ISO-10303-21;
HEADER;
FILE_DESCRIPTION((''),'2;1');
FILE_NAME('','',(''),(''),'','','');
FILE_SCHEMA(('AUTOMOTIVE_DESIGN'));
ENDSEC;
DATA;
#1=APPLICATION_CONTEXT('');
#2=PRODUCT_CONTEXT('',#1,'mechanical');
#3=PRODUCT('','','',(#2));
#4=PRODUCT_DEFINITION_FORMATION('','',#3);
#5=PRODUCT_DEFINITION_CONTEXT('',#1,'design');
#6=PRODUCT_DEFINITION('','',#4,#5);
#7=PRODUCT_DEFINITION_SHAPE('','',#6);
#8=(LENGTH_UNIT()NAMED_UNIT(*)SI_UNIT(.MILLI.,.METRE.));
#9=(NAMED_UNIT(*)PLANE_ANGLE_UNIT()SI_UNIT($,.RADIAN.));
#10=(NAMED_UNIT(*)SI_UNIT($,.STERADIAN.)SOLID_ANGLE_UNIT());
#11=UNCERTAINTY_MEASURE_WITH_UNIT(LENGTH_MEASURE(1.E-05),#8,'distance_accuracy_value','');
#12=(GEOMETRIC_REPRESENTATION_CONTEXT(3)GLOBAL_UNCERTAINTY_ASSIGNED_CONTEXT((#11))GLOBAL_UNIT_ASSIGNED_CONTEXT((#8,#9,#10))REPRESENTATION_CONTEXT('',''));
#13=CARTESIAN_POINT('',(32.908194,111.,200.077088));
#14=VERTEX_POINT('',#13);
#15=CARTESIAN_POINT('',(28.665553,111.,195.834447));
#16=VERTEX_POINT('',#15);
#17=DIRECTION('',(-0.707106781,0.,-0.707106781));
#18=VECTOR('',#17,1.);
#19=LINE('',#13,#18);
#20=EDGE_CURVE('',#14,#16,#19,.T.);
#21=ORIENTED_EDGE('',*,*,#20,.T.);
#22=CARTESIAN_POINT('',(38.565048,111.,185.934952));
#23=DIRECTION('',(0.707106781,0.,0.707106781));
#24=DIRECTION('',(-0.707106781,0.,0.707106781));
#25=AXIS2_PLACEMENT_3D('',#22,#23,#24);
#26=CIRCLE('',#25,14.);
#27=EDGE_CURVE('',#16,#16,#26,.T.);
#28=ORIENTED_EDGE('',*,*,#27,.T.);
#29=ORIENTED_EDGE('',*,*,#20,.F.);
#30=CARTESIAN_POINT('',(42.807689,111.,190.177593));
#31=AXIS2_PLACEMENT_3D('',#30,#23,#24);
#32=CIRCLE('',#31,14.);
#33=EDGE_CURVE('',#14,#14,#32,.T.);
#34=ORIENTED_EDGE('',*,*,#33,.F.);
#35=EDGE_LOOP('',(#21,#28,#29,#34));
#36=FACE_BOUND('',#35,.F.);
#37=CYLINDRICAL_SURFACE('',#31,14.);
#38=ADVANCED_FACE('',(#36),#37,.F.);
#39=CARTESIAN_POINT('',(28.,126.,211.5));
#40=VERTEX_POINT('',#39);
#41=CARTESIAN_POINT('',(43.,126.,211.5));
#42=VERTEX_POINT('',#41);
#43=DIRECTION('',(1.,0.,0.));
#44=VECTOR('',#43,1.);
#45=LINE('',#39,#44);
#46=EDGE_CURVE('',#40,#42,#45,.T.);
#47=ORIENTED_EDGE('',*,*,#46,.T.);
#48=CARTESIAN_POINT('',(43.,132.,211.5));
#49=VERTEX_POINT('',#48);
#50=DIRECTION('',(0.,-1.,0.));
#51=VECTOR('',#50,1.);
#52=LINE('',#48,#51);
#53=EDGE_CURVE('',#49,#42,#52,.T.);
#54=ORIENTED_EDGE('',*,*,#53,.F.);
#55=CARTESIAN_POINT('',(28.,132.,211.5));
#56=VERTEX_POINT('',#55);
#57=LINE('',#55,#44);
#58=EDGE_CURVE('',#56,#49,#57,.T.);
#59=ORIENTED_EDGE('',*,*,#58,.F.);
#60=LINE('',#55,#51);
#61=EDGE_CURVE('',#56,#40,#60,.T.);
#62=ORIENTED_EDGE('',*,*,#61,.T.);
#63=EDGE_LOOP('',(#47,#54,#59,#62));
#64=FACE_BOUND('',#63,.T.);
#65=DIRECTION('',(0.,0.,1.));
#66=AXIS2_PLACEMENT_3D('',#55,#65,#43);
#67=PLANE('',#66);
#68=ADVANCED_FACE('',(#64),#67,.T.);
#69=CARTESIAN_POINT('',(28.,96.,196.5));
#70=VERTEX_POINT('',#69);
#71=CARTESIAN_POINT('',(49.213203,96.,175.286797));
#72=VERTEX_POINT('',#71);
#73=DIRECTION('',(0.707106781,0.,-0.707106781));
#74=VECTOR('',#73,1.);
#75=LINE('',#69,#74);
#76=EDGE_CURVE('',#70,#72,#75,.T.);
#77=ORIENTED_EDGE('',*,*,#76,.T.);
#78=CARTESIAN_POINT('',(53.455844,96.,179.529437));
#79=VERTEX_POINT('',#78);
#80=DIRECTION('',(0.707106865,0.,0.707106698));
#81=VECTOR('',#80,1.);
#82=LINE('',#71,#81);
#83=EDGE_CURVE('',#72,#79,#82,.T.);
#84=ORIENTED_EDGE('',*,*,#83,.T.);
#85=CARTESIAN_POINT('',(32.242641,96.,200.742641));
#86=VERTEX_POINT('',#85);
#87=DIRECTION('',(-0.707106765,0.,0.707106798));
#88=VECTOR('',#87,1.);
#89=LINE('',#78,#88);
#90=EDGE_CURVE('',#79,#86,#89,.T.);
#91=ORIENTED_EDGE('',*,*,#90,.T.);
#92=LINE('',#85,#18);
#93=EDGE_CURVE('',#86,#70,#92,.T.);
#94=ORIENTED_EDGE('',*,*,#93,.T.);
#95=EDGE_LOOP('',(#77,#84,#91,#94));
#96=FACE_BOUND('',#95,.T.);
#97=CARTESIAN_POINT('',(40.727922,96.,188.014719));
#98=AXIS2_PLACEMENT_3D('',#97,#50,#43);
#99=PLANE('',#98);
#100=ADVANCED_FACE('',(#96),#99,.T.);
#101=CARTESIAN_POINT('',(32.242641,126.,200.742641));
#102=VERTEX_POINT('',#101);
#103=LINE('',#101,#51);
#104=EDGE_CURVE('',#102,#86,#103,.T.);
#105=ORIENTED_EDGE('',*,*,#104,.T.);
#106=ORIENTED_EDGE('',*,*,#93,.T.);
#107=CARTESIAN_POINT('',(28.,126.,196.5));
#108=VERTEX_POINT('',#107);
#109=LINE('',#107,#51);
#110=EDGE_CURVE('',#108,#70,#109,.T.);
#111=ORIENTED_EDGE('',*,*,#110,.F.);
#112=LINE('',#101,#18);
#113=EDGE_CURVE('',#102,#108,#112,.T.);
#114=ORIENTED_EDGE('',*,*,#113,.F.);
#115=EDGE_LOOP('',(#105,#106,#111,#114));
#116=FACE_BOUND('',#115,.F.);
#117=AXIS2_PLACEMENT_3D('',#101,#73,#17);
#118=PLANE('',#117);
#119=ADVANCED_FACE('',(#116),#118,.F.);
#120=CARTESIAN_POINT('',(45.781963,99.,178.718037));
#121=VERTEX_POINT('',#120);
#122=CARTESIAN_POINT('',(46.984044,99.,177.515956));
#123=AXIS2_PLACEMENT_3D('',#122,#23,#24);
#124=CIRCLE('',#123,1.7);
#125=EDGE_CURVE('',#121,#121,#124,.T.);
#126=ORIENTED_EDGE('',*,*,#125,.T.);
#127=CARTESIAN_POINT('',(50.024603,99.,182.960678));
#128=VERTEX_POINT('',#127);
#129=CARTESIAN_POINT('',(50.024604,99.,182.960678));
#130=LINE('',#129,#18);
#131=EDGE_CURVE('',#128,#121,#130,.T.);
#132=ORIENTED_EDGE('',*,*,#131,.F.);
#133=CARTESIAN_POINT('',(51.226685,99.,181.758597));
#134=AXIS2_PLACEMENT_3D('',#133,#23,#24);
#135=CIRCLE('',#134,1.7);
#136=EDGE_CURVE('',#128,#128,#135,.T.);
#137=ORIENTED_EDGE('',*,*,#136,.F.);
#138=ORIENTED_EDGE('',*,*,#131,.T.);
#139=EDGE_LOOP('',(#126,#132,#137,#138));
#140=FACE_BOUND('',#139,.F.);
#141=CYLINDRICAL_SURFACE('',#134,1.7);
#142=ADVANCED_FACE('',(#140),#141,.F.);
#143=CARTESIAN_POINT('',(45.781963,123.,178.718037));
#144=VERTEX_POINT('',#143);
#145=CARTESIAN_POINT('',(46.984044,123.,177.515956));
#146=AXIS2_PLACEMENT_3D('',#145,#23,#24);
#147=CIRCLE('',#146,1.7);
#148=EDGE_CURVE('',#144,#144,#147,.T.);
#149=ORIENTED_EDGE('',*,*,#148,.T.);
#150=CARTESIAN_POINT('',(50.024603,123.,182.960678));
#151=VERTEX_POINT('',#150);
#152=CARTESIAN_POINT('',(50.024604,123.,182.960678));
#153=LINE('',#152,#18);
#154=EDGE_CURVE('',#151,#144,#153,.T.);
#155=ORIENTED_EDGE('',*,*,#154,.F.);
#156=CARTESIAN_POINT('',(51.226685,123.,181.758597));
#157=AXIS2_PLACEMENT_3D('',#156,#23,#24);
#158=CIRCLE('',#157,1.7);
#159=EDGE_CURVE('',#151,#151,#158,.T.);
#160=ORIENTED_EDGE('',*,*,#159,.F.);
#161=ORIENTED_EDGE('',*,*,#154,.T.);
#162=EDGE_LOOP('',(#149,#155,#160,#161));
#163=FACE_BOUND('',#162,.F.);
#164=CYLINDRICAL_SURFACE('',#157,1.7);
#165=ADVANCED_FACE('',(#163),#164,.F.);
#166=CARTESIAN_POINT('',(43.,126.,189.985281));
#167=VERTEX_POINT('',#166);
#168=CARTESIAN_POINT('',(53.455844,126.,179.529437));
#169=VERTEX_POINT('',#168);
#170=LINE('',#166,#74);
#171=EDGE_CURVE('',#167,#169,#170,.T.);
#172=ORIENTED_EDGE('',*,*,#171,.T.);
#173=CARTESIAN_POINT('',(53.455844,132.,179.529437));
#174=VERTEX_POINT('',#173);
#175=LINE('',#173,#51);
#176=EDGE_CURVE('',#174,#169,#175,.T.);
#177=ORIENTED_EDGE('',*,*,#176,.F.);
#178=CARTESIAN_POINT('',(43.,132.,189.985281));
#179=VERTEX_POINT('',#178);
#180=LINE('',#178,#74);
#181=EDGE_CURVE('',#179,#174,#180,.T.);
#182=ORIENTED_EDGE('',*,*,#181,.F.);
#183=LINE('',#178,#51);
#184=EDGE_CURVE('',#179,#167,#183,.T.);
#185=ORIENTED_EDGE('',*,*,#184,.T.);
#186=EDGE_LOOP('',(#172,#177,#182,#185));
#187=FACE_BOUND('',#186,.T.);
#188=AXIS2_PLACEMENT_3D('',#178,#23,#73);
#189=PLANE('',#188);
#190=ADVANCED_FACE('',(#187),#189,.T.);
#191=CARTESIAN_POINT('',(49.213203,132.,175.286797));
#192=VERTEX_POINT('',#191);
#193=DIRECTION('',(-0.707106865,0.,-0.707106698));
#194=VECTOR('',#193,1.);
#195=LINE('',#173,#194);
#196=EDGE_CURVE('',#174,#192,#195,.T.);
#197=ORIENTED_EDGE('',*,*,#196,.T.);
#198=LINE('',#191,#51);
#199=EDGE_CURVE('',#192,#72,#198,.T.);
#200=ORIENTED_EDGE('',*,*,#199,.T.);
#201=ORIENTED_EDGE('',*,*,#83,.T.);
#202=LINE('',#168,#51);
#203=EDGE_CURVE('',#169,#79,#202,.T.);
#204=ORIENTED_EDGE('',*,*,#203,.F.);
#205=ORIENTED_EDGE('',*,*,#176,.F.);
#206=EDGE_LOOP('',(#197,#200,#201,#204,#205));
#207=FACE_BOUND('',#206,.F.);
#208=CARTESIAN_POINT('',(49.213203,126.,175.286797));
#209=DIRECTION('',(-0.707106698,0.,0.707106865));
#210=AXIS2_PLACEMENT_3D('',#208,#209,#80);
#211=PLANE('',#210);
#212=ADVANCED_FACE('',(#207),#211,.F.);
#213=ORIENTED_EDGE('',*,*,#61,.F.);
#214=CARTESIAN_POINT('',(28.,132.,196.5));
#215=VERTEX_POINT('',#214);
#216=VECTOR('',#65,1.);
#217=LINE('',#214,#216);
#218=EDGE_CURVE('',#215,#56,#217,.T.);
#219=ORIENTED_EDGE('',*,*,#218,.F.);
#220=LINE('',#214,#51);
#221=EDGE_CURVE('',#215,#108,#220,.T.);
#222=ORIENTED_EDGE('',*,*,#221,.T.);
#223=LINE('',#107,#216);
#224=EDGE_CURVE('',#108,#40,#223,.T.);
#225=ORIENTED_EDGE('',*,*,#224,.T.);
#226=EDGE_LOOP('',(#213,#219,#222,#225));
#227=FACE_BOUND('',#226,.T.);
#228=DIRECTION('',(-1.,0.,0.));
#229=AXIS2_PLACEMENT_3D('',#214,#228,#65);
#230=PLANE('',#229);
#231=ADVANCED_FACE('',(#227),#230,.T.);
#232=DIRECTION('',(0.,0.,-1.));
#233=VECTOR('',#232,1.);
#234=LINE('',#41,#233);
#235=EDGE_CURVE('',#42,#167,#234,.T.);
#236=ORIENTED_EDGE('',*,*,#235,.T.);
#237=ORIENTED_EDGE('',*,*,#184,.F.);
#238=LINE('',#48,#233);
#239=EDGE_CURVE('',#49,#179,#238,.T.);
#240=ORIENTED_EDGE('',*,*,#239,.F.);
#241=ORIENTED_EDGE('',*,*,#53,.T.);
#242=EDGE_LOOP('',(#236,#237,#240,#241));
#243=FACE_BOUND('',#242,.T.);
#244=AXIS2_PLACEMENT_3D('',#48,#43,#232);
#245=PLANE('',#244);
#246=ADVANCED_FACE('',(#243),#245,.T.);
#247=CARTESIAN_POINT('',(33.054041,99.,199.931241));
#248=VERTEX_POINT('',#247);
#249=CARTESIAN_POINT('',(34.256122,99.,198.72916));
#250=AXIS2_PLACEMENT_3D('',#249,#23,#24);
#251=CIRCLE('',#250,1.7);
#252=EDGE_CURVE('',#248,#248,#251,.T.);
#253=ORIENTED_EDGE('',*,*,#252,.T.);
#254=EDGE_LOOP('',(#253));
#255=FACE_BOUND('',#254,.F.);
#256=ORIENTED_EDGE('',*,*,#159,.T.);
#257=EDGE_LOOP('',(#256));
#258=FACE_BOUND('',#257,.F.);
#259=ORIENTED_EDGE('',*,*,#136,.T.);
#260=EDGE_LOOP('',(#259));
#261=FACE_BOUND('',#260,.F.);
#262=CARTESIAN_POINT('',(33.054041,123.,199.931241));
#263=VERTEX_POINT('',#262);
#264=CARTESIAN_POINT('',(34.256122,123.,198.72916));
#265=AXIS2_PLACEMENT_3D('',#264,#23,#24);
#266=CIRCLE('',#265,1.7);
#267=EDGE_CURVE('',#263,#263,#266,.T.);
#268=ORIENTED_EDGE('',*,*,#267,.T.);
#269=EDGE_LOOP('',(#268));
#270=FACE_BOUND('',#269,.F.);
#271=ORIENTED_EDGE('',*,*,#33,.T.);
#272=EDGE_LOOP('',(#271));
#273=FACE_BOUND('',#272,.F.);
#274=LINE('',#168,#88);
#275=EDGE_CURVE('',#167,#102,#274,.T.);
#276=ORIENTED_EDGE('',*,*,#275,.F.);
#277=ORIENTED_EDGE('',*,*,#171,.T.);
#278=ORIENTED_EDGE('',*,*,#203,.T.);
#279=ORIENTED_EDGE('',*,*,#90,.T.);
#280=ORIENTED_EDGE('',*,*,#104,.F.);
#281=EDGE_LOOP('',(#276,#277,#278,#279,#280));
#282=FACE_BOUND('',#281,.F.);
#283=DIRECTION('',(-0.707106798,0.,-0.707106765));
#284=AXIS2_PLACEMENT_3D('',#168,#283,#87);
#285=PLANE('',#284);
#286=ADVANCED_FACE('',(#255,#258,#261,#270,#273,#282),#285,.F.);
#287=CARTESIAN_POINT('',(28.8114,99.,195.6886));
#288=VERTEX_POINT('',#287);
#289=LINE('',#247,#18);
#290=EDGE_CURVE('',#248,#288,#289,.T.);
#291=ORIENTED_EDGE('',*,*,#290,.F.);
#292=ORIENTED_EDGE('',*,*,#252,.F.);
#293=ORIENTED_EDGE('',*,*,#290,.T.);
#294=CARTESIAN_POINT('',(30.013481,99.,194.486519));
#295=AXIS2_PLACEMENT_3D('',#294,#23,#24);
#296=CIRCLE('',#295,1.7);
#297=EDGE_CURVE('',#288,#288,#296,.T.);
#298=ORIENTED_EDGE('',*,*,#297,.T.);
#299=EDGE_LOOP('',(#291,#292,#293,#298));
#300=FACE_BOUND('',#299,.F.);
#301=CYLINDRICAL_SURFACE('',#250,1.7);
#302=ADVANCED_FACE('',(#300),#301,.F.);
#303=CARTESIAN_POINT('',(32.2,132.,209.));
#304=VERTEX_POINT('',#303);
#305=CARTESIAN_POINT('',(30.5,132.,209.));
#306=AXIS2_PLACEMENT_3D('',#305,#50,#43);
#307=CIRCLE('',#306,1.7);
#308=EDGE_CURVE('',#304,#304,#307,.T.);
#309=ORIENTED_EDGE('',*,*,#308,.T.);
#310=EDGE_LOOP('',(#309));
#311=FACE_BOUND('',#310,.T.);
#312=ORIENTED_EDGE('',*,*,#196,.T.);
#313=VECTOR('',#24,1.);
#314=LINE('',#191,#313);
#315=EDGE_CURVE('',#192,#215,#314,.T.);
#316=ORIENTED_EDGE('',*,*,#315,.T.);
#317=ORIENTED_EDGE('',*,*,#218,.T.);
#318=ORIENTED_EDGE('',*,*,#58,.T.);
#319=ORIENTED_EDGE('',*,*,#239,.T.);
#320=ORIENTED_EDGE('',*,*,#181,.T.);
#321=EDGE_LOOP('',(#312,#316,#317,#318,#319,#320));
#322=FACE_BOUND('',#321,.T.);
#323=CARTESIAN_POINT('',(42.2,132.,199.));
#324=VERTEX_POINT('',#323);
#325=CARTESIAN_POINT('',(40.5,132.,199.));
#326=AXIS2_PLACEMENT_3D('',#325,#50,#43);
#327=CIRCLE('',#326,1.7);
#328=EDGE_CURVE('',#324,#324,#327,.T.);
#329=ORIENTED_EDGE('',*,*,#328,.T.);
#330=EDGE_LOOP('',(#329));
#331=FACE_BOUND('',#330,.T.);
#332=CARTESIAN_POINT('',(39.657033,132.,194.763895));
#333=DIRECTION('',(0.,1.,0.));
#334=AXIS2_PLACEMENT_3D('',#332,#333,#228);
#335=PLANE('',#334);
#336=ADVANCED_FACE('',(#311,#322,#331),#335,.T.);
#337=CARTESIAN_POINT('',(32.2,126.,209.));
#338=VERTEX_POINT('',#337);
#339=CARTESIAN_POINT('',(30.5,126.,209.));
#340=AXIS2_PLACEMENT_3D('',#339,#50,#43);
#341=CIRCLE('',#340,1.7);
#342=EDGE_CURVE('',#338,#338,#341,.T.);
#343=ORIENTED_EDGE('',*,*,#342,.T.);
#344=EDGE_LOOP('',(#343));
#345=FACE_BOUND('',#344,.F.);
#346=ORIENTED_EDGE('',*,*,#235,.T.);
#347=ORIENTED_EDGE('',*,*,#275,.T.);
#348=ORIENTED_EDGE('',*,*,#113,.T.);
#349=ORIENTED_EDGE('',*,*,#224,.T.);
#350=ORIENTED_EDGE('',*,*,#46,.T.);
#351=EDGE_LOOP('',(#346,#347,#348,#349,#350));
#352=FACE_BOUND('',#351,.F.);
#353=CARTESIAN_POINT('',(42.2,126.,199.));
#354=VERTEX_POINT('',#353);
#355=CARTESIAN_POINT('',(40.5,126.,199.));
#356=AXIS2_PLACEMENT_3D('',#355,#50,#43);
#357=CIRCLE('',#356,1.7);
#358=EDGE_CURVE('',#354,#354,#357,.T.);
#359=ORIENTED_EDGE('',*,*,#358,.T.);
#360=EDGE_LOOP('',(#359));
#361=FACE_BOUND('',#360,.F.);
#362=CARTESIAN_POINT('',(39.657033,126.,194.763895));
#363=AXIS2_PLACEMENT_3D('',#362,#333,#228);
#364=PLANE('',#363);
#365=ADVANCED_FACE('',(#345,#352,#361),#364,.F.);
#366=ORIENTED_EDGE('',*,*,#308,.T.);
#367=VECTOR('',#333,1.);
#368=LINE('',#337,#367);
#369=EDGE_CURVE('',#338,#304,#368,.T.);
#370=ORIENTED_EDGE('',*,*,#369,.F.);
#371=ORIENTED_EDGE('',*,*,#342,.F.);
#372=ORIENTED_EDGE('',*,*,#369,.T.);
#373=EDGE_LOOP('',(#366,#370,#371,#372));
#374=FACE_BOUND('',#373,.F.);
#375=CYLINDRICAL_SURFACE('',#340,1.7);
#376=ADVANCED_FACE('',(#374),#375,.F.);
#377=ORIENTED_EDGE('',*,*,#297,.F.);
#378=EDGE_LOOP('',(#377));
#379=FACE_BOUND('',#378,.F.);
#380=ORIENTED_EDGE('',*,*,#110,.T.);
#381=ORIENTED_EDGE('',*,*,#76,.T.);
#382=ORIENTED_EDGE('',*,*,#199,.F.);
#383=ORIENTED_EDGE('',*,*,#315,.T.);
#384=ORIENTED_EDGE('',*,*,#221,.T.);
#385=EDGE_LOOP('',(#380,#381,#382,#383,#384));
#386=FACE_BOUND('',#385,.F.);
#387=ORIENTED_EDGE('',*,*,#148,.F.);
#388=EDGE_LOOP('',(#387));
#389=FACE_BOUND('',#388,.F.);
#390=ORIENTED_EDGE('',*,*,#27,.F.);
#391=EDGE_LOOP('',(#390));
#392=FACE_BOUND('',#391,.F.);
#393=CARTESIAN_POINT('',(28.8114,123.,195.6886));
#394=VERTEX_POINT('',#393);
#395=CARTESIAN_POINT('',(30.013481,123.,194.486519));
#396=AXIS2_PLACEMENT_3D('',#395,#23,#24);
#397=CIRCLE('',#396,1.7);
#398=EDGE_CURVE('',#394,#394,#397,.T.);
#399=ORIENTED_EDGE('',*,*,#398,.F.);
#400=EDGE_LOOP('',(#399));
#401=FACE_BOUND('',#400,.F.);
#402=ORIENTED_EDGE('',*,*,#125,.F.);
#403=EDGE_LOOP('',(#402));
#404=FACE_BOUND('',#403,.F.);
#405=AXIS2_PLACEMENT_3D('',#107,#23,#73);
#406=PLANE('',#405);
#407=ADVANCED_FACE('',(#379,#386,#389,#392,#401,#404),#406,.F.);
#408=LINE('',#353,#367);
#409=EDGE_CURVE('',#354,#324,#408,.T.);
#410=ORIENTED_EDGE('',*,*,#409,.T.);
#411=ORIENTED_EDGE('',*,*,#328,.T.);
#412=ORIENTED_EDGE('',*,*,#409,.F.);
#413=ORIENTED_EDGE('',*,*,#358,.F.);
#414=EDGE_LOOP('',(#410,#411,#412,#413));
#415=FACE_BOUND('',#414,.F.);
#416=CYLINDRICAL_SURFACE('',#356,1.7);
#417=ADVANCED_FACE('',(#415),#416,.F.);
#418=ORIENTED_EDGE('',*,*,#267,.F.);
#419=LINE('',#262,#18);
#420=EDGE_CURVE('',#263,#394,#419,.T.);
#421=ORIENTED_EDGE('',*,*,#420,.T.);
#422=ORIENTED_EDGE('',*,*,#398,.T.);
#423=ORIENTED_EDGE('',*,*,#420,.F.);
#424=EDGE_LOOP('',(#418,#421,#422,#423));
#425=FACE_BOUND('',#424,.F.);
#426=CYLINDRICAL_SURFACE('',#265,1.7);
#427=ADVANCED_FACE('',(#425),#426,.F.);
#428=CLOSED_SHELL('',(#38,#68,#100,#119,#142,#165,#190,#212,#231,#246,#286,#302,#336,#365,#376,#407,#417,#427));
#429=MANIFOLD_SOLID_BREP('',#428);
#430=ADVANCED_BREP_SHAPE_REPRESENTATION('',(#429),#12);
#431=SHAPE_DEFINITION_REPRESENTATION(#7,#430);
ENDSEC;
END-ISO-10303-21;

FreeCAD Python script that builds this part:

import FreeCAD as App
import Part
import Sketcher
from FreeCAD import Vector
Q = App.Units.Quantity


def add_polygon(sketch, points):
    """Adds a closed chain of lines whose ends are joined by coincident constraints."""
    first, n = sketch.GeometryCount, len(points)
    for a, b in zip(points, points[1:] + points[:1]):
        sketch.addGeometry(Part.LineSegment(App.Vector(*a, 0), App.Vector(*b, 0)), False)
    for i in range(n):
        sketch.addConstraint(Sketcher.Constraint("Coincident", first + i, 2, first + (i + 1) % n, 1))

doc = App.newDocument("Part")
body = doc.addObject("PartDesign::Body", "Body")

sketch1 = body.newObject("Sketcher::SketchObject", "Sketch")
sketch1.AttachmentSupport = (doc.getObject("XZ_Plane"), [""])
sketch1.MapMode = "FlatFace"
add_polygon(sketch1, [(43, 211.5), (28, 211.5), (28, 196.5), (49.213203, 175.286797), (53.455844, 179.529437), (43, 189.985281)])
sketch1.addConstraint(Sketcher.Constraint("Horizontal", 0))
sketch1.addConstraint(Sketcher.Constraint("Vertical", 1))
sketch1.addConstraint(Sketcher.Constraint("Vertical", 5))
sketch1.addConstraint(Sketcher.Constraint("Perpendicular", 2, 3))
sketch1.addConstraint(Sketcher.Constraint("Perpendicular", 3, 4))
sketch1.addConstraint(Sketcher.Constraint("Equal", 0, 1))
sketch1.addConstraint(Sketcher.Constraint("DistanceX", 0, 2, 0, 1, 15.0))
sketch1.addConstraint(Sketcher.Constraint("Angle", 2, Q("-45 deg")))
sketch1.addConstraint(Sketcher.Constraint("Distance", 2, 29.999999))
sketch1.addConstraint(Sketcher.Constraint("Distance", 3, 6.0))
sketch1.addConstraint(Sketcher.Constraint("DistanceX", -1, 1, 0, 2, 28.0))
sketch1.addConstraint(Sketcher.Constraint("DistanceY", -1, 1, 0, 2, 211.5))
pad1 = body.newObject("PartDesign::Pad", "Pad")
pad1.Profile = sketch1
pad1.Length = 6

sketch2 = body.newObject("Sketcher::SketchObject", "Sketch001")
sketch2.AttachmentSupport = (doc.getObject("XZ_Plane"), [""])
sketch2.MapMode = "FlatFace"
sketch2.AttachmentOffset = App.Placement(Vector(0, 0, 6), App.Rotation())
add_polygon(sketch2, [(28, 196.5), (49.213203, 175.286797), (53.455844, 179.529437), (32.242641, 200.742641)])
sketch2.addConstraint(Sketcher.Constraint("Perpendicular", 0, 1))
sketch2.addConstraint(Sketcher.Constraint("Perpendicular", 1, 2))
sketch2.addConstraint(Sketcher.Constraint("Perpendicular", 2, 3))
sketch2.addConstraint(Sketcher.Constraint("Angle", 0, Q("-45 deg")))
sketch2.addConstraint(Sketcher.Constraint("Distance", 0, 29.999999))
sketch2.addConstraint(Sketcher.Constraint("Distance", 1, 6.0))
sketch2.addConstraint(Sketcher.Constraint("DistanceX", -1, 1, 3, 2, 28.0))
sketch2.addConstraint(Sketcher.Constraint("DistanceY", -1, 1, 3, 2, 196.5))
pad2 = body.newObject("PartDesign::Pad", "Pad001")
pad2.Profile = sketch2
pad2.Length = 30

sketch3 = body.newObject("Sketcher::SketchObject", "Sketch002")
sketch3.Placement = App.Placement(Vector(116.492641, 0, 116.492641), App.Rotation(Vector(-0.707106781, 0, 0.707106781), Vector(0, -0.999999999, 0), Vector(0.707106781, 0, 0.707106781), "ZXY"))
sketch3.addGeometry(Part.Circle(Vector(104.206258, 21, 0), Vector(0, 0, 1), 14), False)
sketch3.addConstraint(Sketcher.Constraint("Diameter", 0, 28.0))
sketch3.addConstraint(Sketcher.Constraint("DistanceY", -1, 1, 0, 3, 21.0))
sketch3.addConstraint(Sketcher.Constraint("DistanceX", -1, 1, 0, 3, 104.206258))
pocket1 = body.newObject("PartDesign::Pocket", "Pocket")
pocket1.Profile = sketch3
pocket1.Type = "ThroughAll"

sketch4 = body.newObject("Sketcher::SketchObject", "Sketch003")
sketch4.Placement = App.Placement(Vector(116.492641, 0, 116.492641), App.Rotation(Vector(-0.707106781, 0, 0.707106781), Vector(0, -0.999999999, 0), Vector(0.707106781, 0, 0.707106781), "ZXY"))
sketch4.addGeometry(Part.Circle(Vector(92.3, 33, 0), Vector(0, 0, 1), 1.7), False)
sketch4.addGeometry(Part.Circle(Vector(116.3, 33, 0), Vector(0, 0, 1), 1.7), False)
sketch4.addGeometry(Part.Circle(Vector(92.3, 9, 0), Vector(0, 0, 1), 1.7), False)
sketch4.addGeometry(Part.Circle(Vector(116.3, 9, 0), Vector(0, 0, 1), 1.7), False)
sketch4.addConstraint(Sketcher.Constraint("Equal", 0, 1))
sketch4.addConstraint(Sketcher.Constraint("Equal", 1, 2))
sketch4.addConstraint(Sketcher.Constraint("Equal", 2, 3))
sketch4.addConstraint(Sketcher.Constraint("Horizontal", 0, 3, 1, 3))
sketch4.addConstraint(Sketcher.Constraint("Horizontal", 2, 3, 3, 3))
sketch4.addConstraint(Sketcher.Constraint("Vertical", 0, 3, 2, 3))
sketch4.addConstraint(Sketcher.Constraint("Vertical", 1, 3, 3, 3))
sketch4.addConstraint(Sketcher.Constraint("Diameter", 0, 3.4))
sketch4.addConstraint(Sketcher.Constraint("DistanceY", -1, 1, 0, 3, 33.0))
sketch4.addConstraint(Sketcher.Constraint("DistanceY", -1, 1, 2, 3, 9.0))
sketch4.addConstraint(Sketcher.Constraint("DistanceX", 0, 3, 1, 3, 24.0))
sketch4.addConstraint(Sketcher.Constraint("DistanceX", -1, 1, 0, 3, 92.3))
pocket2 = body.newObject("PartDesign::Pocket", "Pocket001")
pocket2.Profile = sketch4
pocket2.Length = 25

sketch5 = body.newObject("Sketcher::SketchObject", "Sketch004")
sketch5.AttachmentSupport = (doc.getObject("XZ_Plane"), [""])
sketch5.MapMode = "FlatFace"
sketch5.AttachmentOffset = App.Placement(Vector(0, 0, 6), App.Rotation())
sketch5.addGeometry(Part.Circle(Vector(30.5, 209, 0), Vector(0, 0, 1), 1.7), False)
sketch5.addGeometry(Part.Circle(Vector(40.5, 199, 0), Vector(0, 0, 1), 1.7), False)
sketch5.addConstraint(Sketcher.Constraint("Equal", 0, 1))
sketch5.addConstraint(Sketcher.Constraint("Diameter", 0, 3.4))
sketch5.addConstraint(Sketcher.Constraint("DistanceY", -1, 1, 0, 3, 209.0))
sketch5.addConstraint(Sketcher.Constraint("DistanceY", -1, 1, 1, 3, 199.0))
sketch5.addConstraint(Sketcher.Constraint("DistanceX", 0, 3, 1, 3, 10.0))
sketch5.addConstraint(Sketcher.Constraint("DistanceX", -1, 1, 0, 3, 30.5))
pocket3 = body.newObject("PartDesign::Pocket", "Pocket002")
pocket3.Profile = sketch5
pocket3.Length = 25
body2 = doc.addObject("PartDesign::Body", "Body001")
doc.recompute()

body.Placement = App.Placement(Vector(0, 132, 0), App.Rotation(Vector(0, 0, 1), 0))
boolean = body2.newObject("PartDesign::Boolean", "Boolean")
boolean.Type = "Fuse"
boolean.addObjects([body])

doc.recompute()
